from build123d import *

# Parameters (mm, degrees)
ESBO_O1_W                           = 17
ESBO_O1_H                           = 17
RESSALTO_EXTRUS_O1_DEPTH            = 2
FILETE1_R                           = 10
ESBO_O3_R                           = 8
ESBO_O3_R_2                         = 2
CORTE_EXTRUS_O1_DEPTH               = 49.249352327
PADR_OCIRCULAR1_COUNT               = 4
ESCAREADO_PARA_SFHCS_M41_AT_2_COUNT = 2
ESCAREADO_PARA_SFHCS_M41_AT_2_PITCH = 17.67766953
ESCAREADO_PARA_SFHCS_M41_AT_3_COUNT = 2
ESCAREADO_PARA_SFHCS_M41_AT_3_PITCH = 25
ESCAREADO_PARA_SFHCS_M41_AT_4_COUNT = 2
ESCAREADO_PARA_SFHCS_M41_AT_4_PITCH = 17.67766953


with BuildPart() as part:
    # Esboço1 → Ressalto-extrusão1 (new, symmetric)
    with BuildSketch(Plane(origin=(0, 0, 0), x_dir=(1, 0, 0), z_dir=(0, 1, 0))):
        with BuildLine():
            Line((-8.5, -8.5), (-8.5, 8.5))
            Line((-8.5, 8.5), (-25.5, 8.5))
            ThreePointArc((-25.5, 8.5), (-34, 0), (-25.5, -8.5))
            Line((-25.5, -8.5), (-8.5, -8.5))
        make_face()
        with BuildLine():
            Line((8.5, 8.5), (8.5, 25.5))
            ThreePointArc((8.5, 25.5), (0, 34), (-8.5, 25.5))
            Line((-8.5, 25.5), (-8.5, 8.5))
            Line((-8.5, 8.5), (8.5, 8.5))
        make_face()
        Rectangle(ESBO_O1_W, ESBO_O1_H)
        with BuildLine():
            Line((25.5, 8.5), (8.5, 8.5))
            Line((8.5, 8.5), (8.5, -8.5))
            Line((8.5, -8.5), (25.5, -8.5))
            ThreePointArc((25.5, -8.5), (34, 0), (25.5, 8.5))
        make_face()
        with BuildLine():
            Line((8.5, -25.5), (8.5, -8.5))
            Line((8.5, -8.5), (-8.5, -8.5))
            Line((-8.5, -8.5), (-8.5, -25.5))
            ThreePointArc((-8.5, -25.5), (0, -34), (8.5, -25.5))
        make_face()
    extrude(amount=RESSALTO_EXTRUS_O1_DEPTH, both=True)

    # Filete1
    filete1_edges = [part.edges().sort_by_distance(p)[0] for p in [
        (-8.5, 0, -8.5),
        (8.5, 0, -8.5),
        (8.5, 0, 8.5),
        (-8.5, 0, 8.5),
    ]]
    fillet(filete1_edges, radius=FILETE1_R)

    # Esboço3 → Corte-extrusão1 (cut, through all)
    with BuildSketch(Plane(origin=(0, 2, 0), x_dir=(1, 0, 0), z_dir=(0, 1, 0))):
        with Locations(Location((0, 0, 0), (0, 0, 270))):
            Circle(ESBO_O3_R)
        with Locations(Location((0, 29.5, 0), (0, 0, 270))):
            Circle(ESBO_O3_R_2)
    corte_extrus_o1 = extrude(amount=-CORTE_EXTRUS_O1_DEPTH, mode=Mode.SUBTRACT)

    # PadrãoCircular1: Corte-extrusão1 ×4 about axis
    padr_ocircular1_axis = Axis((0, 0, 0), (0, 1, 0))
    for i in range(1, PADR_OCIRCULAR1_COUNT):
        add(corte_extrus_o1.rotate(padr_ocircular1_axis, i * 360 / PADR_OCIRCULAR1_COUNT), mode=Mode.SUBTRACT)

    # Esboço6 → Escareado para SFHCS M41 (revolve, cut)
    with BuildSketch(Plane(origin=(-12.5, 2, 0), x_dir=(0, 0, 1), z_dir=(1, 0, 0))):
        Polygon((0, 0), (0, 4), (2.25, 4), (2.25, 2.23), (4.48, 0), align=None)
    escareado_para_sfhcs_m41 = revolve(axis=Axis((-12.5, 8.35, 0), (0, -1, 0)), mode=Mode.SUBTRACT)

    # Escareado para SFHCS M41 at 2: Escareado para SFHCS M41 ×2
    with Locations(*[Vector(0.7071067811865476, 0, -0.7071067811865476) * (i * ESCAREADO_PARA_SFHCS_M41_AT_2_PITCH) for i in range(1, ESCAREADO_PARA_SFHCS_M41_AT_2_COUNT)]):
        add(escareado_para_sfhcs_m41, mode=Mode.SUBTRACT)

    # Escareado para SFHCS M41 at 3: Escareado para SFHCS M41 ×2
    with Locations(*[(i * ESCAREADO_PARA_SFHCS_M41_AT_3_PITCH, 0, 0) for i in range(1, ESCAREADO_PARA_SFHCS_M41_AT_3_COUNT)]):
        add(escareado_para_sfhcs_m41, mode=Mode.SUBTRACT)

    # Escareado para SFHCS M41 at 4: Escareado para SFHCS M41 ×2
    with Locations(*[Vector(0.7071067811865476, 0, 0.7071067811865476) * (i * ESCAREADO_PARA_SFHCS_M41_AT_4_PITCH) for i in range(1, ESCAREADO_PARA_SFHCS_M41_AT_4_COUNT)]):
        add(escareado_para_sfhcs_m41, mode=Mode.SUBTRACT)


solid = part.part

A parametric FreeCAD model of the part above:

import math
import FreeCAD as App
import Part
import Sketcher
Q = App.Units.Quantity


def edges_at(feature, points):
    """Names of the edges that pass closest to the given points."""
    edges = feature.Shape.Edges
    near = lambda p: min(range(len(edges)), key=lambda i: edges[i].distToShape(Part.Vertex(*p))[0])
    return sorted({f"Edge{near(p) + 1}" for p in points})

doc = App.newDocument("Part")
params = doc.addObject("Spreadsheet::Sheet", "Params")
for row, (alias, value) in enumerate([
    ("sketch1_radius", "8.5 mm"),
    ("sketch1_width", "17 mm"),
    ("pad1_length", "4 mm"),
    ("fillet_radius", "10 mm"),
    ("sketch2_diameter", "16 mm"),
    ("sketch2_diameter2", "4 mm"),
    ("sketch3_width", "4 mm"),
    ("sketch3_width2", "1.77 mm"),
    ("sketch3_height", "4.48 mm"),
    ("groove_angle", "360 deg"),
    ("linearpattern_pitch", "17.67767 mm"),
    ("linearpattern2_pitch", "25 mm"),
    ("linearpattern3_pitch", "17.67767 mm"),
], start=1):
    params.set(f"A{row}", alias)
    params.set(f"B{row}", "=" + value)
    params.setAlias(f"B{row}", alias)

body = doc.addObject("PartDesign::Body", "Body")

sketch1 = body.newObject("Sketcher::SketchObject", "Sketch")
sketch1.AttachmentSupport = (doc.getObject("XZ_Plane"), [""])
sketch1.MapMode = "FlatFace"
sketch1.addGeometry([
    Part.LineSegment(App.Vector(-8, -8, 0), App.Vector(-26, -8, 0)),
    Part.ArcOfCircle(Part.Circle(App.Vector(-26, 0, 0), App.Vector(0, 0, 1), 8), math.radians(90), math.radians(270)),
    Part.LineSegment(App.Vector(-26, 8, 0), App.Vector(-8, 8, 0)),
    Part.LineSegment(App.Vector(-8, 8, 0), App.Vector(-8, 26, 0)),
    Part.ArcOfCircle(Part.Circle(App.Vector(0, 26, 0), App.Vector(0, 0, 1), 8), math.radians(0), math.radians(180)),
    Part.LineSegment(App.Vector(8, 26, 0), App.Vector(8, 8, 0)),
    Part.LineSegment(App.Vector(8, 8, 0), App.Vector(26, 8, 0)),
    Part.ArcOfCircle(Part.Circle(App.Vector(26, 0, 0), App.Vector(0, 0, 1), 8), math.radians(-90), math.radians(90)),
    Part.LineSegment(App.Vector(26, -8, 0), App.Vector(8, -8, 0)),
    Part.LineSegment(App.Vector(8, -8, 0), App.Vector(8, -26, 0)),
    Part.ArcOfCircle(Part.Circle(App.Vector(0, -26, 0), App.Vector(0, 0, 1), 8), math.radians(180), math.radians(360)),
    Part.LineSegment(App.Vector(-8, -26, 0), App.Vector(-8, -8, 0)),
], False)
sketch1.addConstraint([
    Sketcher.Constraint("Tangent", 0, 2, 1, 2),
    Sketcher.Constraint("Tangent", 1, 1, 2, 1),
    Sketcher.Constraint("Coincident", 2, 2, 3, 1),
    Sketcher.Constraint("Tangent", 3, 2, 4, 2),
    Sketcher.Constraint("Tangent", 4, 1, 5, 1),
    Sketcher.Constraint("Coincident", 5, 2, 6, 1),
    Sketcher.Constraint("Tangent", 6, 2, 7, 2),
    Sketcher.Constraint("Tangent", 7, 1, 8, 1),
    Sketcher.Constraint("Coincident", 8, 2, 9, 1),
    Sketcher.Constraint("Tangent", 9, 2, 10, 2),
    Sketcher.Constraint("Tangent", 10, 1, 11, 1),
    Sketcher.Constraint("Coincident", 11, 2, 0, 1),
    Sketcher.Constraint("Horizontal", 0),
    Sketcher.Constraint("Horizontal", 2),
    Sketcher.Constraint("Vertical", 3),
    Sketcher.Constraint("Vertical", 5),
    Sketcher.Constraint("Horizontal", 6),
    Sketcher.Constraint("Horizontal", 8),
    Sketcher.Constraint("Vertical", 9),
    Sketcher.Constraint("Vertical", 11),
    Sketcher.Constraint("Equal", 1, 4),
    Sketcher.Constraint("Equal", 4, 7),
    Sketcher.Constraint("Equal", 7, 10),
    Sketcher.Constraint("Symmetric", 1, 3, 7, 3, -1, 1),
    Sketcher.Constraint("Symmetric", 4, 3, 10, 3, -1, 1),
    Sketcher.Constraint("Symmetric", 2, 2, 5, 2, -2),
    Sketcher.Constraint("Equal", 8, 3),
    Sketcher.Constraint("Radius", 1, Q("8.5 mm")),
    Sketcher.Constraint("DistanceX", 0, 2, 0, 1, Q("17 mm")),
])
sketch1.setExpression("Constraints[27]", "Params.sketch1_radius")
sketch1.setExpression("Constraints[28]", "Params.sketch1_width")
pad1 = body.newObject("PartDesign::Pad", "Pad")
pad1.Profile = sketch1
pad1.setExpression("Length", "Params.pad1_length")
pad1.Midplane = True
doc.recompute()

fillet = body.newObject("PartDesign::Fillet", "Fillet")
fillet.Base = (pad1, edges_at(pad1, [
    (-8.5, 0, -8.5),
    (8.5, 0, -8.5),
    (8.5, 0, 8.5),
    (-8.5, 0, 8.5),
]))
fillet.setExpression("Radius", "Params.fillet_radius")

sketch2 = body.newObject("Sketcher::SketchObject", "Sketch001")
sketch2.AttachmentSupport = (doc.getObject("XZ_Plane"), [""])
sketch2.MapMode = "FlatFace"
sketch2.AttachmentOffset = App.Placement(App.Vector(0, 0, -2), App.Rotation())
sketch2.addGeometry([
    Part.Circle(App.Vector(0, 0, 0), App.Vector(0, 0, 1), 8),
    Part.Circle(App.Vector(0, -29.5, 0), App.Vector(0, 0, 1), 2),
], False)
sketch2.addConstraint([
    Sketcher.Constraint("Coincident", 0, 3, -1, 1),
    Sketcher.Constraint("PointOnObject", 1, 3, -2),
    Sketcher.Constraint("Diameter", 0, Q("16 mm")),
    Sketcher.Constraint("Diameter", 1, Q("4 mm")),
    Sketcher.Constraint("DistanceY", 1, 3, -1, 1, Q("29.5 mm")),
])
sketch2.setExpression("Constraints[2]", "Params.sketch2_diameter")
sketch2.setExpression("Constraints[3]", "Params.sketch2_diameter2")
pocket1 = body.newObject("PartDesign::Pocket", "Pocket")
pocket1.Profile = sketch2
pocket1.Type = "ThroughAll"
pocket1.Reversed = True
doc.recompute()

polarpattern = body.newObject("PartDesign::PolarPattern", "PolarPattern")
polarpattern.Originals = [pocket1]
polarpattern.Axis = (doc.getObject("Y_Axis"), [""])
polarpattern.Angle = 360
polarpattern.Occurrences = 4
body.Tip = polarpattern

sketch3 = body.newObject("Sketcher::SketchObject", "Sketch002")
sketch3.AttachmentSupport = (doc.getObject("YZ_Plane"), [""])
sketch3.MapMode = "FlatFace"
sketch3.AttachmentOffset = App.Placement(App.Vector(0, 0, -12.5), App.Rotation())
sketch3.addGeometry([
    Part.LineSegment(App.Vector(-2, 0, 0), App.Vector(2, 0, 0)),
    Part.LineSegment(App.Vector(2, 0, 0), App.Vector(2, 4.5, 0)),
    Part.LineSegment(App.Vector(2, 4.5, 0), App.Vector(-0.2, 2.2, 0)),
    Part.LineSegment(App.Vector(-0.2, 2.2, 0), App.Vector(-2, 2.2, 0)),
    Part.LineSegment(App.Vector(-2, 2.2, 0), App.Vector(-2, 0, 0)),
], False)
sketch3.addConstraint([
    Sketcher.Constraint("Coincident", 0, 2, 1, 1),
    Sketcher.Constraint("Coincident", 1, 2, 2, 1),
    Sketcher.Constraint("Coincident", 2, 2, 3, 1),
    Sketcher.Constraint("Coincident", 3, 2, 4, 1),
    Sketcher.Constraint("Coincident", 4, 2, 0, 1),
    Sketcher.Constraint("Horizontal", 0),
    Sketcher.Constraint("Vertical", 1),
    Sketcher.Constraint("Horizontal", 3),
    Sketcher.Constraint("Vertical", 4),
    Sketcher.Constraint("Symmetric", 0, 2, 4, 2, -1, 1),
    Sketcher.Constraint("DistanceX", 0, 1, 0, 2, Q("4 mm")),
    Sketcher.Constraint("Angle", 2, Q("-135 deg")),
    Sketcher.Constraint("DistanceX", 3, 2, 3, 1, Q("1.77 mm")),
    Sketcher.Constraint("DistanceY", 1, 1, 1, 2, Q("4.48 mm")),
])
sketch3.setExpression("Constraints[10]", "Params.sketch3_width")
sketch3.setExpression("Constraints[12]", "Params.sketch3_width2")
sketch3.setExpression("Constraints[13]", "Params.sketch3_height")
groove = body.newObject("PartDesign::Groove", "Groove")
groove.Profile = sketch3
groove.ReferenceAxis = (sketch3, ["H_Axis"])
groove.setExpression("Angle", "Params.groove_angle")
doc.recompute()

datumline = body.newObject("PartDesign::Line", "DatumLine")
datumline.Placement = App.Placement(App.Vector(0, 0, 0), App.Rotation(App.Vector(0, 0, 1), App.Vector(0.707106781, 0, -0.707106781)))
linearpattern = body.newObject("PartDesign::LinearPattern", "LinearPattern")
linearpattern.Originals = [groove]
linearpattern.Direction = (datumline, [""])
linearpattern.Mode = "offset"
linearpattern.setExpression("Offset", "Params.linearpattern_pitch")
linearpattern.Occurrences = 2
body.Tip = linearpattern
doc.recompute()

linearpattern2 = body.newObject("PartDesign::LinearPattern", "LinearPattern001")
linearpattern2.Originals = [groove]
linearpattern2.Direction = (doc.getObject("X_Axis"), [""])
linearpattern2.Mode = "offset"
linearpattern2.setExpression("Offset", "Params.linearpattern2_pitch")
linearpattern2.Occurrences = 2
body.Tip = linearpattern2
doc.recompute()

datumline2 = body.newObject("PartDesign::Line", "DatumLine001")
datumline2.Placement = App.Placement(App.Vector(0, 0, 0), App.Rotation(App.Vector(0, 0, 1), App.Vector(0.707106781, 0, 0.707106781)))
linearpattern3 = body.newObject("PartDesign::LinearPattern", "LinearPattern002")
linearpattern3.Originals = [groove]
linearpattern3.Direction = (datumline2, [""])
linearpattern3.Mode = "offset"
linearpattern3.setExpression("Offset", "Params.linearpattern3_pitch")
linearpattern3.Occurrences = 2
body.Tip = linearpattern3

doc.recompute()
